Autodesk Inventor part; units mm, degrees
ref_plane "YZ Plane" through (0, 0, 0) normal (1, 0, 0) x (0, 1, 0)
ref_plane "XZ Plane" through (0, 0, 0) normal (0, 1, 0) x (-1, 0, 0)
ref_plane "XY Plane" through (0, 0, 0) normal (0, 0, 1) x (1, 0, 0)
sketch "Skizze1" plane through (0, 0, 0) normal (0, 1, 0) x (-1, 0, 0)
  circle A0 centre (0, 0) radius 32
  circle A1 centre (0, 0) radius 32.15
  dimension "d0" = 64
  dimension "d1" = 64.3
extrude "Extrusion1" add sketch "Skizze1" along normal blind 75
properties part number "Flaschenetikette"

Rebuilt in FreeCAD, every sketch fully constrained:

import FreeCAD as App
import Part
import Sketcher

V = App.Vector
Q = App.Units.Quantity

doc = App.newDocument("Part")
body = doc.addObject("PartDesign::Body", "Body")

# Sketch on XZ plane
sketch1 = body.newObject("Sketcher::SketchObject", "Sketch")
sketch1.AttachmentSupport = (doc.getObject("XZ_Plane"), [""])
sketch1.MapMode = "FlatFace"
sketch1.addGeometry([
    Part.Circle(V(0, 0, 0), V(0, 0, 1), 32),
    Part.Circle(V(0, 0, 0), V(0, 0, 1), 32),
], False)
sketch1.addConstraint([
    Sketcher.Constraint("Coincident", 0, 3, -1, 1),
    Sketcher.Constraint("Coincident", 1, 3, -1, 1),
    Sketcher.Constraint("Diameter", 1, Q("64 mm")),
    Sketcher.Constraint("Diameter", 0, Q("64.3 mm")),
])
pad1 = body.newObject("PartDesign::Pad", "Pad")
pad1.Profile = sketch1
pad1.Length = 75
pad1.Reversed = True

doc.recompute()
